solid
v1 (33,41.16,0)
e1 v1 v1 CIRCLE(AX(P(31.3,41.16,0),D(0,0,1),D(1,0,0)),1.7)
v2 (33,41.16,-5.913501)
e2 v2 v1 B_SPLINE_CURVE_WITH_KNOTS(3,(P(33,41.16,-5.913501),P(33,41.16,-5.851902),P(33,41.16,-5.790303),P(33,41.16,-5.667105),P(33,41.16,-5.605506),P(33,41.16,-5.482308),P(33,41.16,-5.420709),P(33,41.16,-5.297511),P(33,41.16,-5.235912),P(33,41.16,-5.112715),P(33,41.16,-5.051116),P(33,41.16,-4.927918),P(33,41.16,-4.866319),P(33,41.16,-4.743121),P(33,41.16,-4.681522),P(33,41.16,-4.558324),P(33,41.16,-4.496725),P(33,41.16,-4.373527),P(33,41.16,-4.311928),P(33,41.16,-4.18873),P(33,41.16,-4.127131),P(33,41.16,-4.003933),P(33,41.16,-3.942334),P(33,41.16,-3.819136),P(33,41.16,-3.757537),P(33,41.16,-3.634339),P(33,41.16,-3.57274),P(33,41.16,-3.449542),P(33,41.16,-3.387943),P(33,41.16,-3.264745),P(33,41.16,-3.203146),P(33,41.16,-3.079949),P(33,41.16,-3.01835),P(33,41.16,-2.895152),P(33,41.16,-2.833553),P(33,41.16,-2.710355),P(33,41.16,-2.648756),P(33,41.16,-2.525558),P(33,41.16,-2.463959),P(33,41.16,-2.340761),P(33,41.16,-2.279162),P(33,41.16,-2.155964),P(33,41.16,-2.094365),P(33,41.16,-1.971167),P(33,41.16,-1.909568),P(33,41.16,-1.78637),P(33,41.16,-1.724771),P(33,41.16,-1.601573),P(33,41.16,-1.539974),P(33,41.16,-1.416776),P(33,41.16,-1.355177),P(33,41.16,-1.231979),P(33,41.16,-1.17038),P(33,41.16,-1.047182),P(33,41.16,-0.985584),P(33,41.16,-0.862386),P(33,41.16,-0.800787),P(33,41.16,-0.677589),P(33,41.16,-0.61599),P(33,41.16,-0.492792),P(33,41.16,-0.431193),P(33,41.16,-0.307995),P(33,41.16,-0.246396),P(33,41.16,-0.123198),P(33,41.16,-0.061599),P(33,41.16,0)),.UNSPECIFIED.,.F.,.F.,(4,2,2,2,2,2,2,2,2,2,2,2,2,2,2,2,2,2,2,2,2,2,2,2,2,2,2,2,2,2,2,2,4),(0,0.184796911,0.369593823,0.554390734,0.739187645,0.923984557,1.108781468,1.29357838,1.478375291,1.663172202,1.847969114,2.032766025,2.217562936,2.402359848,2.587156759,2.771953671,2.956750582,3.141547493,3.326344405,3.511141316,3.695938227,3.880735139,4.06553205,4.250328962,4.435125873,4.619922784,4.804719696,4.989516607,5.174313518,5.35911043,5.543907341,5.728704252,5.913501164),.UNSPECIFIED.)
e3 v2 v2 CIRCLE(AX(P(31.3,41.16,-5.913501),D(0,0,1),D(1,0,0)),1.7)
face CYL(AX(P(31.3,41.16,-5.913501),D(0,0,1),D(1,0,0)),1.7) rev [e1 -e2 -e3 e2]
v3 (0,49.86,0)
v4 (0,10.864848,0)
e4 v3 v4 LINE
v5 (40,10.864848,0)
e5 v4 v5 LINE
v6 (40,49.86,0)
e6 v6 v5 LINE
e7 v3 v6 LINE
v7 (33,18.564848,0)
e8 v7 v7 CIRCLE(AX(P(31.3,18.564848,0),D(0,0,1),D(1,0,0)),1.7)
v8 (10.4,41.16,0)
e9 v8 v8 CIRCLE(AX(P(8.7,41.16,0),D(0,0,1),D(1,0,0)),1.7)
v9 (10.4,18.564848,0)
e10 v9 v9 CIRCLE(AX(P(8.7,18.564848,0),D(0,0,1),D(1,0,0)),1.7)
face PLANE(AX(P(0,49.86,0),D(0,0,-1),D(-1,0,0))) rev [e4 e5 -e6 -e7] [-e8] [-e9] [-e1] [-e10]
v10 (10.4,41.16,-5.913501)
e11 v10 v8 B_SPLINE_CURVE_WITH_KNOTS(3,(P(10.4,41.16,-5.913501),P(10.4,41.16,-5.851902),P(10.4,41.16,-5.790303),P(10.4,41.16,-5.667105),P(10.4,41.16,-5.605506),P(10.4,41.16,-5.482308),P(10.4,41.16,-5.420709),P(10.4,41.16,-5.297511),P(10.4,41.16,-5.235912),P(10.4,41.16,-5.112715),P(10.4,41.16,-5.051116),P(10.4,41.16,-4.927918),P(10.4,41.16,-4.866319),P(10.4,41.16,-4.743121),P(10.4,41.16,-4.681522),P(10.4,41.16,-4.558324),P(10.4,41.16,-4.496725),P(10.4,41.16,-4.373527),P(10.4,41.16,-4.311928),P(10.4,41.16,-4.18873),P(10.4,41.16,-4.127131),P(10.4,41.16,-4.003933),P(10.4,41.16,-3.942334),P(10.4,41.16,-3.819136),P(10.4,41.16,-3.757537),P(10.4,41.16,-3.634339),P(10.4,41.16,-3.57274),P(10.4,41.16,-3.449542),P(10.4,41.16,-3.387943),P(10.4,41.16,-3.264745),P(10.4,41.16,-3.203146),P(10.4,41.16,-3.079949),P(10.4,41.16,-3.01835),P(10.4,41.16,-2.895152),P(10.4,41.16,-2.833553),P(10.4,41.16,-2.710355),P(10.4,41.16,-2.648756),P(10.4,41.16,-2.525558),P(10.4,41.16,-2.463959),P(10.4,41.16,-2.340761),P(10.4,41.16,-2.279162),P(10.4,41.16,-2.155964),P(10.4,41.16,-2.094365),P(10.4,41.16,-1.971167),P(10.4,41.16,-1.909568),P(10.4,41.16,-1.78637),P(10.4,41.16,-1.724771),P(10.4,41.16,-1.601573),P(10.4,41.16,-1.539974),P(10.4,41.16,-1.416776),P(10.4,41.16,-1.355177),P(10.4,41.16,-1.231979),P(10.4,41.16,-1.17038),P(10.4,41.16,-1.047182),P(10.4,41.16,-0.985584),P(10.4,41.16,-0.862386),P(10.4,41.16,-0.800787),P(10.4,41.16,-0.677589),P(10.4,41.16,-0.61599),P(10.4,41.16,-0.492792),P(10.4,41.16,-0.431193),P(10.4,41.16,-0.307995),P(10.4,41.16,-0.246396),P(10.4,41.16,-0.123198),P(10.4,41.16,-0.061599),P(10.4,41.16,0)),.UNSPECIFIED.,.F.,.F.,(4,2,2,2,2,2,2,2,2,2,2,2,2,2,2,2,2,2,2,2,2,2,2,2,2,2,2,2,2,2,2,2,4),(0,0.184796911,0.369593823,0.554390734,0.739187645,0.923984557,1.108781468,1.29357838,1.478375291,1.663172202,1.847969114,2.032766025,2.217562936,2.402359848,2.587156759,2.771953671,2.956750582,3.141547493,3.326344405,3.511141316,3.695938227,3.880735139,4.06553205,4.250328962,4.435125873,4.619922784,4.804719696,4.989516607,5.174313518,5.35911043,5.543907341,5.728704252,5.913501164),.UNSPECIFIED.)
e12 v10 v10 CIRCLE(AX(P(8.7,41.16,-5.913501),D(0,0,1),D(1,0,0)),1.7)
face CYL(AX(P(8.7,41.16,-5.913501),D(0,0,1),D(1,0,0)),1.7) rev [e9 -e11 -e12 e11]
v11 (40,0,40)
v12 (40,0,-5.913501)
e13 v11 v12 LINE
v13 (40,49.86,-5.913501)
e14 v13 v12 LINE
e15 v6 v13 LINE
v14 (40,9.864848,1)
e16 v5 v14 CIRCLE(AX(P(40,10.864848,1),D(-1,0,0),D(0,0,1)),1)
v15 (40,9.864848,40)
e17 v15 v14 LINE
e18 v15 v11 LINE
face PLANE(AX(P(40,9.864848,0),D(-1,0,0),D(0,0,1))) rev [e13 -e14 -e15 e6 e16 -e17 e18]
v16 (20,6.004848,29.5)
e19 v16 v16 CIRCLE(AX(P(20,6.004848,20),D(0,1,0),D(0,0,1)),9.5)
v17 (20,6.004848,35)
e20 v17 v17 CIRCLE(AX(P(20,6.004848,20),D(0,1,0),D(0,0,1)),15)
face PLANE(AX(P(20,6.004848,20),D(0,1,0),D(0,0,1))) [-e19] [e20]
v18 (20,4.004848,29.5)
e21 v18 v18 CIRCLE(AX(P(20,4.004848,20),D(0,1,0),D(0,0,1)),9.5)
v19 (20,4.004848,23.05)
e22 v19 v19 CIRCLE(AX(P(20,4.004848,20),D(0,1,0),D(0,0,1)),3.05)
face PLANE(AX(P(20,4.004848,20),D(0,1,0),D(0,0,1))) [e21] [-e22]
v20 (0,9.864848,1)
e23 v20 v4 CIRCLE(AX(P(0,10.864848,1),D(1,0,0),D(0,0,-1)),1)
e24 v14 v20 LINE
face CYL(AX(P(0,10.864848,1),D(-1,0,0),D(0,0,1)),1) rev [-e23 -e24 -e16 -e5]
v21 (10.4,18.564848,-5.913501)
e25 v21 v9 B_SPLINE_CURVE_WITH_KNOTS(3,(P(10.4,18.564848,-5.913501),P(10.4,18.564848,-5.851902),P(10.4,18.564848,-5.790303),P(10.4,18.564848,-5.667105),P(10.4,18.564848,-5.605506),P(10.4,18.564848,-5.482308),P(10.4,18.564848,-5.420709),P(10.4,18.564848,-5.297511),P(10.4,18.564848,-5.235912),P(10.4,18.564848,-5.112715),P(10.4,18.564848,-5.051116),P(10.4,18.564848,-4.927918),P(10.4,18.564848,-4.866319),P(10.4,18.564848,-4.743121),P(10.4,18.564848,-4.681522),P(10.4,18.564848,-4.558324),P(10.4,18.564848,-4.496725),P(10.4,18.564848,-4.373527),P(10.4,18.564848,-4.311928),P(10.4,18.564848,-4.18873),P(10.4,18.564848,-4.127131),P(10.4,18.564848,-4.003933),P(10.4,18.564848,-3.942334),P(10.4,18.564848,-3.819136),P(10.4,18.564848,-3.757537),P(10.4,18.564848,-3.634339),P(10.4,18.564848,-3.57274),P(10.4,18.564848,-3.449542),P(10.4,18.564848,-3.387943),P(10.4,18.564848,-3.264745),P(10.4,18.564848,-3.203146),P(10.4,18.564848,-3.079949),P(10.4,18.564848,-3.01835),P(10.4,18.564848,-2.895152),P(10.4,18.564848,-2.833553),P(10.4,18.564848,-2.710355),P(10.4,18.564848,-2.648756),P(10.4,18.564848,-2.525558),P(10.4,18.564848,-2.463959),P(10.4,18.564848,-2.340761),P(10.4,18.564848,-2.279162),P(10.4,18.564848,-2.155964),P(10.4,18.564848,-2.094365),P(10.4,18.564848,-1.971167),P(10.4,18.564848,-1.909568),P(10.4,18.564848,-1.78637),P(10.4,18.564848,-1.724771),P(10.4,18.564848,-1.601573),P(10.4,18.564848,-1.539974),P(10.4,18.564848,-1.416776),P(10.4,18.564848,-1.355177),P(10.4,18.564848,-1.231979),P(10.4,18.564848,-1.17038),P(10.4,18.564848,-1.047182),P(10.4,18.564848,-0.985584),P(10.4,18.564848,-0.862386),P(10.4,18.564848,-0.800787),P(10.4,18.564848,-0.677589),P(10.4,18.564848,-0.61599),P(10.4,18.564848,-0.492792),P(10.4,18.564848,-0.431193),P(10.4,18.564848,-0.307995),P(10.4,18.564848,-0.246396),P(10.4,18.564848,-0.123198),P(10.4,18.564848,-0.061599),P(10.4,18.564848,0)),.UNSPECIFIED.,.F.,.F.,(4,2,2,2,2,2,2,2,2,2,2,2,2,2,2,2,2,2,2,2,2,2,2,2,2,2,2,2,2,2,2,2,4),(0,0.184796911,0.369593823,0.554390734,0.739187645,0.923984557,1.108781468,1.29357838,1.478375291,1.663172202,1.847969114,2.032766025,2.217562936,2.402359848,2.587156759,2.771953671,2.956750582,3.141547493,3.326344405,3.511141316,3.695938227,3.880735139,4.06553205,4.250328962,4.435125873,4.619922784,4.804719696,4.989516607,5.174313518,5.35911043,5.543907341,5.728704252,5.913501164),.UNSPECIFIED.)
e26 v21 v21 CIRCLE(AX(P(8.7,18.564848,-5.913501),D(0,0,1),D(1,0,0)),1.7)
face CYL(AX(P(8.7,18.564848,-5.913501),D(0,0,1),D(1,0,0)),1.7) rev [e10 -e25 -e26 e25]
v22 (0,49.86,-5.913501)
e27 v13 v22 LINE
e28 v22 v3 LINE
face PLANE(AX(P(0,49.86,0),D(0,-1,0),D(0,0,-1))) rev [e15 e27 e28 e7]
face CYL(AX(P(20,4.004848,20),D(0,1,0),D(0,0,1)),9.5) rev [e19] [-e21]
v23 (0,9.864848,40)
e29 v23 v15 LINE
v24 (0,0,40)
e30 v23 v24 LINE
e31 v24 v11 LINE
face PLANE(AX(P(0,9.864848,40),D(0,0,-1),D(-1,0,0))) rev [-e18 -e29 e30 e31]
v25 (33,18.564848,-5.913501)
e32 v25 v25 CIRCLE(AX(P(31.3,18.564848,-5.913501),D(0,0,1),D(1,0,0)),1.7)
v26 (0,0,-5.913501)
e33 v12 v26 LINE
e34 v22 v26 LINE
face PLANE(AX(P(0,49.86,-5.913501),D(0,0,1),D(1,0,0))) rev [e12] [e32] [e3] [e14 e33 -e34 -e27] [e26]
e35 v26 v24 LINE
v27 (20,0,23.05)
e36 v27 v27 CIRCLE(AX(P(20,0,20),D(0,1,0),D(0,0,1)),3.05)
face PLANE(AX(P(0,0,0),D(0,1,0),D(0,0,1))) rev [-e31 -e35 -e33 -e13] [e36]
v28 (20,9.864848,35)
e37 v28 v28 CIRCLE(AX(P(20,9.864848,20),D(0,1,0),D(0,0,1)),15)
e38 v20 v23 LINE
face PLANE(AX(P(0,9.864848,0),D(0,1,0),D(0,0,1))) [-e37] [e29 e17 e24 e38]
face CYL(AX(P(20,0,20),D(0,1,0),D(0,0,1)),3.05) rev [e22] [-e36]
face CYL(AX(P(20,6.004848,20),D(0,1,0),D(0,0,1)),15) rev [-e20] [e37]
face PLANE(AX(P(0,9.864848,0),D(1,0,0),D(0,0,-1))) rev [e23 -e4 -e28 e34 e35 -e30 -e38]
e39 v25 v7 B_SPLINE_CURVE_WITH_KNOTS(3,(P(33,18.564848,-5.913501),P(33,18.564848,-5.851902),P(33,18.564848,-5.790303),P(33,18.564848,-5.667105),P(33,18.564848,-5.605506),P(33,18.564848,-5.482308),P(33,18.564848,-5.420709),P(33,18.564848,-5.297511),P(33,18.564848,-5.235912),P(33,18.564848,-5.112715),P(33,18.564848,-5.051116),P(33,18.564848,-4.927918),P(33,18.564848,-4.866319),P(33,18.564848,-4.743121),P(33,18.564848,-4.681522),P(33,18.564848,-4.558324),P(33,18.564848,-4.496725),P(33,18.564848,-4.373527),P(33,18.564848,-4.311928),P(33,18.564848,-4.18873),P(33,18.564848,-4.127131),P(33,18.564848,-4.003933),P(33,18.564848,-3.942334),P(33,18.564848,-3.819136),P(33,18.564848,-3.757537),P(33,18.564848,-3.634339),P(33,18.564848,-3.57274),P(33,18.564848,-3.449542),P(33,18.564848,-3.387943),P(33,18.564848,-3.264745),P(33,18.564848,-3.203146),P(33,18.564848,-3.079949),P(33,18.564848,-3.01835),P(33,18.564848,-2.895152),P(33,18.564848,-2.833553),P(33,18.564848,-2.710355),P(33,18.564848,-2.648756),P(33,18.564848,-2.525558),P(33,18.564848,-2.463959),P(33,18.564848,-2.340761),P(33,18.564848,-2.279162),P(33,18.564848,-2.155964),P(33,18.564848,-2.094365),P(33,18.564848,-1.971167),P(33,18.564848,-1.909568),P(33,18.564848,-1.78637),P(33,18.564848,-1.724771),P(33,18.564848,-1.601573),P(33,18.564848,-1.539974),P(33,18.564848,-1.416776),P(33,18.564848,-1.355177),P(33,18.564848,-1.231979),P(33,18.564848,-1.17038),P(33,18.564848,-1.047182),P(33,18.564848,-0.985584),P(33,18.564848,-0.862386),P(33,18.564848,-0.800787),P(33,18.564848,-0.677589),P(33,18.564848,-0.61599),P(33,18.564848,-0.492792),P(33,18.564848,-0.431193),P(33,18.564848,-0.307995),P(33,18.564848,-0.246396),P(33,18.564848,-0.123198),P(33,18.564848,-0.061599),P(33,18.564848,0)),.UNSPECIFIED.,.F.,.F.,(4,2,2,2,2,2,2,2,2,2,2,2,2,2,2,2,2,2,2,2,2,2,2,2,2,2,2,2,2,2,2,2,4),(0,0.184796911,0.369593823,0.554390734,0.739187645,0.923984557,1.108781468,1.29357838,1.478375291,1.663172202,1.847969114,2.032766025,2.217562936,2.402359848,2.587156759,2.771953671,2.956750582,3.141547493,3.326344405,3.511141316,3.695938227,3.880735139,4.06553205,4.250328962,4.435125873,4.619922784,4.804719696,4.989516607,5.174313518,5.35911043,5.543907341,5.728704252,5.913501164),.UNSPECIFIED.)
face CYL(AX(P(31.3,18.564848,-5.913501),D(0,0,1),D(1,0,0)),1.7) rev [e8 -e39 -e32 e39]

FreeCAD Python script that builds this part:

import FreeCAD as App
import Part
import Sketcher
from FreeCAD import Vector
Q = App.Units.Quantity


def edges_at(feature, points):
    """Names of the edges that pass closest to the given points."""
    edges = feature.Shape.Edges
    near = lambda p: min(range(len(edges)), key=lambda i: edges[i].distToShape(Part.Vertex(*p))[0])
    return sorted({f"Edge{near(p) + 1}" for p in points})

doc = App.newDocument("Part")
params = doc.addObject("Spreadsheet::Sheet", "Params")
for row, (alias, value) in enumerate([
    ("sketch1_width", "40 mm"),
    ("pad1_length", "9.864848 mm"),
    ("sketch2_diameter", "30 mm"),
    ("pocket1_length", "3.86 mm"),
    ("sketch3_diameter", "19 mm"),
    ("pocket2_length", "2 mm"),
    ("sketch4_diameter", "6.1 mm"),
    ("sketch5_width", "40 mm"),
    ("pad2_length", "49.86 mm"),
    ("sketch6_diameter", "3.4 mm"),
    ("fillet_radius", "1 mm"),
], start=1):
    params.set(f"A{row}", alias)
    params.set(f"B{row}", "=" + value)
    params.setAlias(f"B{row}", alias)

body = doc.addObject("PartDesign::Body", "Body")

# Sketch on XZ plane
sketch1 = body.newObject("Sketcher::SketchObject", "Sketch")
sketch1.AttachmentSupport = (doc.getObject("XZ_Plane"), [""])
sketch1.MapMode = "FlatFace"
sketch1.addGeometry(Part.LineSegment(Vector(0, 0, 0), Vector(0, 40, 0)), False)
sketch1.addGeometry(Part.LineSegment(Vector(0, 40, 0), Vector(40, 40, 0)), False)
sketch1.addGeometry(Part.LineSegment(Vector(40, 40, 0), Vector(40, 0, 0)), False)
sketch1.addGeometry(Part.LineSegment(Vector(40, 0, 0), Vector(0, 0, 0)), False)
sketch1.addConstraint(Sketcher.Constraint("Coincident", 0, 2, 1, 1))
sketch1.addConstraint(Sketcher.Constraint("Coincident", 1, 2, 2, 1))
sketch1.addConstraint(Sketcher.Constraint("Coincident", 2, 2, 3, 1))
sketch1.addConstraint(Sketcher.Constraint("Coincident", 3, 2, 0, 1))
sketch1.addConstraint(Sketcher.Constraint("Vertical", 0))
sketch1.addConstraint(Sketcher.Constraint("Horizontal", 1))
sketch1.addConstraint(Sketcher.Constraint("Vertical", 2))
sketch1.addConstraint(Sketcher.Constraint("Horizontal", 3))
sketch1.addConstraint(Sketcher.Constraint("Coincident", 3, 2, -1, 1))
sketch1.addConstraint(Sketcher.Constraint("Equal", 3, 0))
sketch1.addConstraint(Sketcher.Constraint("DistanceX", 1, 1, 1, 2, Q("40 mm")))
sketch1.setExpression("Constraints[10]", "Params.sketch1_width")
pad1 = body.newObject("PartDesign::Pad", "Pad")
pad1.Profile = sketch1
pad1.setExpression("Length", "Params.pad1_length")
pad1.Reversed = True

# Sketch on XZ plane
sketch2 = body.newObject("Sketcher::SketchObject", "Sketch001")
sketch2.AttachmentSupport = (doc.getObject("XZ_Plane"), [""])
sketch2.MapMode = "FlatFace"
sketch2.AttachmentOffset = App.Placement(Vector(0, 0, -9.864848), App.Rotation())
sketch2.addGeometry(Part.Circle(Vector(20, 20, 0), Vector(0, 0, 1), 15), False)
sketch2.addConstraint(Sketcher.Constraint("Diameter", 0, Q("30 mm")))
sketch2.addConstraint(Sketcher.Constraint("DistanceX", -1, 1, 0, 3, Q("20 mm")))
sketch2.addConstraint(Sketcher.Constraint("DistanceY", -1, 1, 0, 3, Q("20 mm")))
sketch2.setExpression("Constraints[0]", "Params.sketch2_diameter")
pocket1 = body.newObject("PartDesign::Pocket", "Pocket")
pocket1.Profile = sketch2
pocket1.setExpression("Length", "Params.pocket1_length")
pocket1.Reversed = True

# Sketch on XZ plane
sketch3 = body.newObject("Sketcher::SketchObject", "Sketch002")
sketch3.AttachmentSupport = (doc.getObject("XZ_Plane"), [""])
sketch3.MapMode = "FlatFace"
sketch3.AttachmentOffset = App.Placement(Vector(0, 0, -6.004848), App.Rotation())
sketch3.addGeometry(Part.Circle(Vector(20, 20, 0), Vector(0, 0, 1), 10), False)
sketch3.addConstraint(Sketcher.Constraint("Diameter", 0, Q("19 mm")))
sketch3.addConstraint(Sketcher.Constraint("DistanceX", -1, 1, 0, 3, Q("20 mm")))
sketch3.addConstraint(Sketcher.Constraint("DistanceY", -1, 1, 0, 3, Q("20 mm")))
sketch3.setExpression("Constraints[0]", "Params.sketch3_diameter")
pocket2 = body.newObject("PartDesign::Pocket", "Pocket001")
pocket2.Profile = sketch3
pocket2.setExpression("Length", "Params.pocket2_length")
pocket2.Reversed = True

# Sketch on XZ plane
sketch4 = body.newObject("Sketcher::SketchObject", "Sketch003")
sketch4.AttachmentSupport = (doc.getObject("XZ_Plane"), [""])
sketch4.MapMode = "FlatFace"
sketch4.AttachmentOffset = App.Placement(Vector(0, 0, -4.004848), App.Rotation())
sketch4.addGeometry(Part.Circle(Vector(20, 20, 0), Vector(0, 0, 1), 3), False)
sketch4.addConstraint(Sketcher.Constraint("Diameter", 0, Q("6.1 mm")))
sketch4.addConstraint(Sketcher.Constraint("DistanceX", -1, 1, 0, 3, Q("20 mm")))
sketch4.addConstraint(Sketcher.Constraint("DistanceY", -1, 1, 0, 3, Q("20 mm")))
sketch4.setExpression("Constraints[0]", "Params.sketch4_diameter")
pocket3 = body.newObject("PartDesign::Pocket", "Pocket002")
pocket3.Profile = sketch4
pocket3.Type = "ThroughAll"
pocket3.Reversed = True

# Sketch on XZ plane
sketch5 = body.newObject("Sketcher::SketchObject", "Sketch004")
sketch5.AttachmentSupport = (doc.getObject("XZ_Plane"), [""])
sketch5.MapMode = "FlatFace"
sketch5.addGeometry(Part.LineSegment(Vector(0, -6, 0), Vector(0, 0, 0)), False)
sketch5.addGeometry(Part.LineSegment(Vector(0, 0, 0), Vector(40, 0, 0)), False)
sketch5.addGeometry(Part.LineSegment(Vector(40, 0, 0), Vector(40, -6, 0)), False)
sketch5.addGeometry(Part.LineSegment(Vector(40, -6, 0), Vector(0, -6, 0)), False)
sketch5.addConstraint(Sketcher.Constraint("Coincident", 0, 2, 1, 1))
sketch5.addConstraint(Sketcher.Constraint("Coincident", 1, 2, 2, 1))
sketch5.addConstraint(Sketcher.Constraint("Coincident", 2, 2, 3, 1))
sketch5.addConstraint(Sketcher.Constraint("Coincident", 3, 2, 0, 1))
sketch5.addConstraint(Sketcher.Constraint("Vertical", 0))
sketch5.addConstraint(Sketcher.Constraint("Horizontal", 1))
sketch5.addConstraint(Sketcher.Constraint("Vertical", 2))
sketch5.addConstraint(Sketcher.Constraint("Horizontal", 3))
sketch5.addConstraint(Sketcher.Constraint("Coincident", 0, 2, -1, 1))
sketch5.addConstraint(Sketcher.Constraint("DistanceX", 1, 1, 1, 2, Q("40 mm")))
sketch5.addConstraint(Sketcher.Constraint("DistanceY", 0, 1, 0, 2, Q("5.913501 mm")))
sketch5.setExpression("Constraints[9]", "Params.sketch5_width")
pad2 = body.newObject("PartDesign::Pad", "Pad001")
pad2.Profile = sketch5
pad2.setExpression("Length", "Params.pad2_length")
pad2.Reversed = True

# Sketch on XY plane
sketch6 = body.newObject("Sketcher::SketchObject", "Sketch005")
sketch6.AttachmentSupport = (doc.getObject("XY_Plane"), [""])
sketch6.MapMode = "FlatFace"
sketch6.addGeometry(Part.Circle(Vector(8.7, 18.6, 0), Vector(0, 0, 1), 1.7), False)
sketch6.addGeometry(Part.Circle(Vector(31.3, 18.6, 0), Vector(0, 0, 1), 1.7), False)
sketch6.addGeometry(Part.Circle(Vector(31.3, 41.2, 0), Vector(0, 0, 1), 1.7), False)
sketch6.addGeometry(Part.Circle(Vector(8.7, 41.2, 0), Vector(0, 0, 1), 1.7), False)
sketch6.addConstraint(Sketcher.Constraint("Equal", 0, 1))
sketch6.addConstraint(Sketcher.Constraint("Equal", 1, 2))
sketch6.addConstraint(Sketcher.Constraint("Equal", 2, 3))
sketch6.addConstraint(Sketcher.Constraint("Horizontal", 0, 3, 1, 3))
sketch6.addConstraint(Sketcher.Constraint("Horizontal", 2, 3, 3, 3))
sketch6.addConstraint(Sketcher.Constraint("Vertical", 1, 3, 2, 3))
sketch6.addConstraint(Sketcher.Constraint("Vertical", 0, 3, 3, 3))
sketch6.addConstraint(Sketcher.Constraint("Diameter", 0, Q("3.4 mm")))
sketch6.addConstraint(Sketcher.Constraint("DistanceX", -1, 1, 0, 3, Q("8.7 mm")))
sketch6.addConstraint(Sketcher.Constraint("DistanceX", -1, 1, 1, 3, Q("31.3 mm")))
sketch6.addConstraint(Sketcher.Constraint("DistanceY", -1, 1, 2, 3, Q("41.16 mm")))
sketch6.addConstraint(Sketcher.Constraint("DistanceY", -1, 1, 0, 3, Q("18.564848 mm")))
sketch6.setExpression("Constraints[7]", "Params.sketch6_diameter")
pocket4 = body.newObject("PartDesign::Pocket", "Pocket003")
pocket4.Profile = sketch6
pocket4.Type = "ThroughAll"
doc.recompute()

fillet = body.newObject("PartDesign::Fillet", "Fillet")
fillet.Base = (pocket4, edges_at(pocket4, [(20, 9.865, 0)]))
fillet.setExpression("Radius", "Params.fillet_radius")

doc.recompute()
